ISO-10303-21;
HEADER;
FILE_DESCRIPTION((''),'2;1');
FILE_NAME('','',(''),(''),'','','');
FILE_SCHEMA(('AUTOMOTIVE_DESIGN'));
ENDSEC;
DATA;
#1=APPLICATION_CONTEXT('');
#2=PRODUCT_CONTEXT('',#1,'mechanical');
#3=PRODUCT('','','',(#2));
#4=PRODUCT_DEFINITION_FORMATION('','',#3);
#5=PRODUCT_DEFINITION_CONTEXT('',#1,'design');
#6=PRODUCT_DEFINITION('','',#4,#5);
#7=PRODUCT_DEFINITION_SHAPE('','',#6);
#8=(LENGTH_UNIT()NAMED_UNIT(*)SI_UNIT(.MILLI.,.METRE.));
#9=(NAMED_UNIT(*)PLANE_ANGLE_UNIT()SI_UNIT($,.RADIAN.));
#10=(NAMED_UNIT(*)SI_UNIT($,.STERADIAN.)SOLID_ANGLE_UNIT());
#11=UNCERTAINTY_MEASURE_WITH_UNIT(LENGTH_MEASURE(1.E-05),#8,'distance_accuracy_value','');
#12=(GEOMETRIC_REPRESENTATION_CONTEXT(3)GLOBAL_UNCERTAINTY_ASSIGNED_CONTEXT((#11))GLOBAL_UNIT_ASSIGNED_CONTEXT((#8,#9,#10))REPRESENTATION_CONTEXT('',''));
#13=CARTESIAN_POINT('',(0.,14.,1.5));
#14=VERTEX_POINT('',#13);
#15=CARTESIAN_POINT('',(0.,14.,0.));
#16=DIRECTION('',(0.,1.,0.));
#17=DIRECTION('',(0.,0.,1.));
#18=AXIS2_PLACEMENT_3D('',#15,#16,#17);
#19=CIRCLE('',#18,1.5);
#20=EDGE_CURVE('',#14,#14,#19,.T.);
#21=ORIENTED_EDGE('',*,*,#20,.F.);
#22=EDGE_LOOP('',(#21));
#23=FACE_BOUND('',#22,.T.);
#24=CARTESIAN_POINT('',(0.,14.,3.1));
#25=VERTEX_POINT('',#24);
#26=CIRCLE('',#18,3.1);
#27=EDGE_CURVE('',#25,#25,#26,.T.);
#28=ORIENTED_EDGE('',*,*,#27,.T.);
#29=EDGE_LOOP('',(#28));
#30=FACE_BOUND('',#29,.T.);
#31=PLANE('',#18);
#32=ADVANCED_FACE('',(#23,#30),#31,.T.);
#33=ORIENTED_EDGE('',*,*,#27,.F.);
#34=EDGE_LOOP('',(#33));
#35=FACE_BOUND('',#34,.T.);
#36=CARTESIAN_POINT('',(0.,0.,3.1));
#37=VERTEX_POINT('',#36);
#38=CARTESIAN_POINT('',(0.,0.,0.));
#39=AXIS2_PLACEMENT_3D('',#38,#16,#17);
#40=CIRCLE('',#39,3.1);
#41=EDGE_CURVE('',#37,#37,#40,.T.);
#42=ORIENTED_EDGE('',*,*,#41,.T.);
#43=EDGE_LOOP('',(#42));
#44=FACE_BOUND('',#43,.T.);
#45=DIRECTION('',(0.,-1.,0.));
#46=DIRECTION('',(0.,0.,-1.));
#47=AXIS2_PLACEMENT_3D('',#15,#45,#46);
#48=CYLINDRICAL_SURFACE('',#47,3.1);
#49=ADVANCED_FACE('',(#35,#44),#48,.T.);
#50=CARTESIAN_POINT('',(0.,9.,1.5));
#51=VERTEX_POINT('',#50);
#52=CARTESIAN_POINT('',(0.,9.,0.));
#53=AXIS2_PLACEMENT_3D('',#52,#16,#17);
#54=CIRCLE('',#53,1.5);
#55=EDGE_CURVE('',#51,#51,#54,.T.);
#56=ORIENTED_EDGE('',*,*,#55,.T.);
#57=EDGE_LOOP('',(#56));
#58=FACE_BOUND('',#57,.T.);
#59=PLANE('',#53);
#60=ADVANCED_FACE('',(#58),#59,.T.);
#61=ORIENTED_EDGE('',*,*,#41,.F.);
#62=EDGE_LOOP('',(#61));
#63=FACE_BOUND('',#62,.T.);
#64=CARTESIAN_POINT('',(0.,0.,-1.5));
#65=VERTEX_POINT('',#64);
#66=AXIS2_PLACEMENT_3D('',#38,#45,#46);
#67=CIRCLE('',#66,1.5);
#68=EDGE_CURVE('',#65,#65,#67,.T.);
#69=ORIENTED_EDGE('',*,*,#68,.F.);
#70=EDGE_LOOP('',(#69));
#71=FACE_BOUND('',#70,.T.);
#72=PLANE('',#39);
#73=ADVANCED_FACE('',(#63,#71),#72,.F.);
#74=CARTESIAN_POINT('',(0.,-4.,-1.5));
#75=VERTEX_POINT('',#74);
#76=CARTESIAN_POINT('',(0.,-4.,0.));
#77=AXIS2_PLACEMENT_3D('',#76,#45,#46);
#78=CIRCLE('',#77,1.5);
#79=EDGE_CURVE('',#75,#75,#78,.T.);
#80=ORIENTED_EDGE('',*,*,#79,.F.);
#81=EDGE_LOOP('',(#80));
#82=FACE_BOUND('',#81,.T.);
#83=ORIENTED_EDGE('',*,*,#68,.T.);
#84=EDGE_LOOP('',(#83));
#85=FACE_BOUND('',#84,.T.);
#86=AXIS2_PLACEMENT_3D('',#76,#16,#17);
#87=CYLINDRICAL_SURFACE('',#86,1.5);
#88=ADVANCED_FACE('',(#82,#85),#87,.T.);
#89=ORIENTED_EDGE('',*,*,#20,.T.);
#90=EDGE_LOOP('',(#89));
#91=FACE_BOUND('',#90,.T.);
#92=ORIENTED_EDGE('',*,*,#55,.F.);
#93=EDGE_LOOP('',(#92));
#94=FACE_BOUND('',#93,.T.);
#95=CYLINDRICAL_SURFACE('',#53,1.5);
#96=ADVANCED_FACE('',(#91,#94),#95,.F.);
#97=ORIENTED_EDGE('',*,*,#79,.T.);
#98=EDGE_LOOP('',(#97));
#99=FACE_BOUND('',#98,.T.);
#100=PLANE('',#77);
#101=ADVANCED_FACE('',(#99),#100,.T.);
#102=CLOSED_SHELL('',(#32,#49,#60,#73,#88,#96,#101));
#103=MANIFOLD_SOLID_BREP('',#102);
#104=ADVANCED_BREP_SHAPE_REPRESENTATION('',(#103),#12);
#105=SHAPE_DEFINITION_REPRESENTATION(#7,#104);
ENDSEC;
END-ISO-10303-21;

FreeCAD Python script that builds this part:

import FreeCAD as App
import Part
import Sketcher
from FreeCAD import Vector

doc = App.newDocument("Part")
params = doc.addObject("Spreadsheet::Sheet", "Params")
for row, (alias, value) in enumerate([
    ("sketch1_diameter", "6.2 mm"),
    ("pad1_length", "14 mm"),
    ("sketch2_diameter", "3 mm"),
    ("pocket1_length", "5 mm"),
    ("sketch3_diameter", "3 mm"),
    ("pad2_length", "4 mm"),
], start=1):
    params.set(f"A{row}", alias)
    params.set(f"B{row}", "=" + value)
    params.setAlias(f"B{row}", alias)

body = doc.addObject("PartDesign::Body", "Body")

# Sketch on XZ plane
sketch1 = body.newObject("Sketcher::SketchObject", "Sketch")
sketch1.AttachmentSupport = (doc.getObject("XZ_Plane"), [""])
sketch1.MapMode = "FlatFace"
sketch1.addGeometry(Part.Circle(Vector(0, 0, 0), Vector(0, 0, 1), 3.1), False)
sketch1.addConstraint(Sketcher.Constraint("Coincident", 0, 3, -1, 1))
sketch1.addConstraint(Sketcher.Constraint("Diameter", 0, 6.2))
sketch1.setExpression("Constraints[1]", "Params.sketch1_diameter")
pad1 = body.newObject("PartDesign::Pad", "Pad")
pad1.Profile = sketch1
pad1.setExpression("Length", "Params.pad1_length")
pad1.Reversed = True

# Sketch on XZ plane
sketch2 = body.newObject("Sketcher::SketchObject", "Sketch001")
sketch2.AttachmentSupport = (doc.getObject("XZ_Plane"), [""])
sketch2.MapMode = "FlatFace"
sketch2.AttachmentOffset = App.Placement(Vector(0, 0, -14), App.Rotation())
sketch2.addGeometry(Part.Circle(Vector(0, 0, 0), Vector(0, 0, 1), 1.5), False)
sketch2.addConstraint(Sketcher.Constraint("Coincident", 0, 3, -1, 1))
sketch2.addConstraint(Sketcher.Constraint("Diameter", 0, 3.0))
sketch2.setExpression("Constraints[1]", "Params.sketch2_diameter")
pocket1 = body.newObject("PartDesign::Pocket", "Pocket")
pocket1.Profile = sketch2
pocket1.setExpression("Length", "Params.pocket1_length")
pocket1.Reversed = True

# Sketch on XZ plane
sketch3 = body.newObject("Sketcher::SketchObject", "Sketch002")
sketch3.AttachmentSupport = (doc.getObject("XZ_Plane"), [""])
sketch3.MapMode = "FlatFace"
sketch3.addGeometry(Part.Circle(Vector(0, 0, 0), Vector(0, 0, 1), 1.5), False)
sketch3.addConstraint(Sketcher.Constraint("Coincident", 0, 3, -1, 1))
sketch3.addConstraint(Sketcher.Constraint("Diameter", 0, 3.0))
sketch3.setExpression("Constraints[1]", "Params.sketch3_diameter")
pad2 = body.newObject("PartDesign::Pad", "Pad001")
pad2.Profile = sketch3
pad2.setExpression("Length", "Params.pad2_length")

doc.recompute()
